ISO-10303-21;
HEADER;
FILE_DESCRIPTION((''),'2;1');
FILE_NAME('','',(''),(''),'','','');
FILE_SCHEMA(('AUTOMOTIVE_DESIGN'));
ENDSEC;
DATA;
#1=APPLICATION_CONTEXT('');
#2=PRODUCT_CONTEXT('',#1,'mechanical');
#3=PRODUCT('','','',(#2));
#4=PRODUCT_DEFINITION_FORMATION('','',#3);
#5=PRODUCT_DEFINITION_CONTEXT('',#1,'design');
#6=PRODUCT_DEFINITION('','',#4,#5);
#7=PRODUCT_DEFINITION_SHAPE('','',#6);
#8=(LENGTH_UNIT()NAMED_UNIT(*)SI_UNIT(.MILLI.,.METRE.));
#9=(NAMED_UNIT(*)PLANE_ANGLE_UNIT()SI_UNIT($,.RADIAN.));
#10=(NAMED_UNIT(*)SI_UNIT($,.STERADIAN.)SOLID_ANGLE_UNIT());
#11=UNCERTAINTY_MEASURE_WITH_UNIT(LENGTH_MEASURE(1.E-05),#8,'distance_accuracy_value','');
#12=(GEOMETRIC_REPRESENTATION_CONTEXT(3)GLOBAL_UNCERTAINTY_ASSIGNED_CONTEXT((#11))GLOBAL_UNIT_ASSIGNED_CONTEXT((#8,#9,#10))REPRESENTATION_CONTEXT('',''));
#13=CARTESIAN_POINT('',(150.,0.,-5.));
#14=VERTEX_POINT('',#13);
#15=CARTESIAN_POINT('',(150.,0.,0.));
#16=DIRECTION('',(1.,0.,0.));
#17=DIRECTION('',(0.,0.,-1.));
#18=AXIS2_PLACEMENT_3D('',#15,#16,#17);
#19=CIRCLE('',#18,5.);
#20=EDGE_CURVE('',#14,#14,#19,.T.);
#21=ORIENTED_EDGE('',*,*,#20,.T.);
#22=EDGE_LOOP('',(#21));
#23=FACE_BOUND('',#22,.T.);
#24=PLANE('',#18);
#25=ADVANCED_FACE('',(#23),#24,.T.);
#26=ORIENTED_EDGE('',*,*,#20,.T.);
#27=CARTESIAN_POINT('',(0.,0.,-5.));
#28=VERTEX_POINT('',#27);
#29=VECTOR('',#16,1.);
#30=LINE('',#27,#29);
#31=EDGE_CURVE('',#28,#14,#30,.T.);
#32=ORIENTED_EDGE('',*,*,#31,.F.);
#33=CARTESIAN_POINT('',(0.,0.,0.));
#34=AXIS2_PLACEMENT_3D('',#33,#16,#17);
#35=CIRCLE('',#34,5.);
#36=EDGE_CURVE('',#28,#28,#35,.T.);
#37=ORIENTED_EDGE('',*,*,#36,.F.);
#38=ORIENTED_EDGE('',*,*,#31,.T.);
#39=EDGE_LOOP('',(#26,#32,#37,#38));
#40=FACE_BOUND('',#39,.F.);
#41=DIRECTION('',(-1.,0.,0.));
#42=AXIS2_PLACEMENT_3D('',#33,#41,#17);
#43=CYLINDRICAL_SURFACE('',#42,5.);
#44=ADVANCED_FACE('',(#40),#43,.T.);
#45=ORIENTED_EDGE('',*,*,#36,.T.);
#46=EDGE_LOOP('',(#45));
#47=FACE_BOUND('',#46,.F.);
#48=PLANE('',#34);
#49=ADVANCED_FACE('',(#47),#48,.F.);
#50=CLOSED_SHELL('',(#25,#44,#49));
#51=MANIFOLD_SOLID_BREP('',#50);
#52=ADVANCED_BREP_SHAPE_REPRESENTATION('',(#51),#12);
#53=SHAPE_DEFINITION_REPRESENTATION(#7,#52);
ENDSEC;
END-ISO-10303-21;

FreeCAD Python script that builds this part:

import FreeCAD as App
import Part
import Sketcher
from FreeCAD import Vector
Q = App.Units.Quantity

doc = App.newDocument("Part")
body = doc.addObject("PartDesign::Body", "Body")

# Sketch on YZ plane
sketch1 = body.newObject("Sketcher::SketchObject", "Sketch")
sketch1.AttachmentSupport = (doc.getObject("YZ_Plane"), [""])
sketch1.MapMode = "FlatFace"
sketch1.addGeometry(Part.Circle(Vector(0, 0, 0), Vector(0, 0, 1), 5), False)
sketch1.addConstraint(Sketcher.Constraint("Coincident", 0, 3, -1, 1))
sketch1.addConstraint(Sketcher.Constraint("Diameter", 0, Q("10 mm")))
pad1 = body.newObject("PartDesign::Pad", "Pad")
pad1.Profile = sketch1
pad1.Length = 150

doc.recompute()
